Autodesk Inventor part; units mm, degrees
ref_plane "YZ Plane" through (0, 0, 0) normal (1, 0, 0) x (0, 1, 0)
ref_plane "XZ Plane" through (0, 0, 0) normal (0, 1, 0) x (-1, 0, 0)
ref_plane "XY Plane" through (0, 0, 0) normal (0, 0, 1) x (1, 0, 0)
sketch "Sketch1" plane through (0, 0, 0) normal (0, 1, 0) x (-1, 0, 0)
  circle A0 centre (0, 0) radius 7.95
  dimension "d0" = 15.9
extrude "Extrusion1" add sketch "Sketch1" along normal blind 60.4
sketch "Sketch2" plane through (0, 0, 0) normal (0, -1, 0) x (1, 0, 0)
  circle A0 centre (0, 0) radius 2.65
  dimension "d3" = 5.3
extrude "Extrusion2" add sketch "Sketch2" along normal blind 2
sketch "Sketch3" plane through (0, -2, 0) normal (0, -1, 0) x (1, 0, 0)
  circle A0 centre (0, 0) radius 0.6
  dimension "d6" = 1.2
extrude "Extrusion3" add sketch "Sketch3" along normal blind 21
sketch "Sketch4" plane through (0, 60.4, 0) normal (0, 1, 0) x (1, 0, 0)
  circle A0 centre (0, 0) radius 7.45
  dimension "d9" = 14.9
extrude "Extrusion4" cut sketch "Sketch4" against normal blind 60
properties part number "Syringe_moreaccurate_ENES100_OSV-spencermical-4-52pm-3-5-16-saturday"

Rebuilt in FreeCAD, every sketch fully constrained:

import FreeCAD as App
import Part
import Sketcher

V = App.Vector
Q = App.Units.Quantity

doc = App.newDocument("Part")
body = doc.addObject("PartDesign::Body", "Body")

# Sketch on XZ plane
sketch1 = doc.addObject("Sketcher::SketchObject", "Sketch")
body.addObject(sketch1)
sketch1.AttachmentSupport = (doc.XZ_Plane, [""])
sketch1.MapMode = "FlatFace"
sketch1.addGeometry(Part.Circle(V(0, 0, 0), V(0, 0, 1), 8), False)
sketch1.addConstraint([
    Sketcher.Constraint("Coincident", 0, 3, -1, 1),
    Sketcher.Constraint("Diameter", 0, Q("15.9 mm")),
])
pad1 = doc.addObject("PartDesign::Pad", "Pad")
body.addObject(pad1)
pad1.Profile = sketch1
pad1.Length = 60.4
pad1.Reversed = True

# Sketch on XZ plane
sketch2 = doc.addObject("Sketcher::SketchObject", "Sketch001")
body.addObject(sketch2)
sketch2.AttachmentSupport = (doc.XZ_Plane, [""])
sketch2.MapMode = "FlatFace"
sketch2.addGeometry(Part.Circle(V(0, 0, 0), V(0, 0, 1), 2.6), False)
sketch2.addConstraint([
    Sketcher.Constraint("Coincident", 0, 3, -1, 1),
    Sketcher.Constraint("Diameter", 0, Q("5.3 mm")),
])
pad2 = doc.addObject("PartDesign::Pad", "Pad001")
body.addObject(pad2)
pad2.Profile = sketch2
pad2.Length = 2

# Sketch on XZ plane
sketch3 = doc.addObject("Sketcher::SketchObject", "Sketch002")
body.addObject(sketch3)
sketch3.AttachmentSupport = (doc.XZ_Plane, [""])
sketch3.MapMode = "FlatFace"
sketch3.AttachmentOffset = App.Placement(V(0, 0, 2), App.Rotation())
sketch3.addGeometry(Part.Circle(V(0, 0, 0), V(0, 0, 1), 0.6), False)
sketch3.addConstraint([
    Sketcher.Constraint("Coincident", 0, 3, -1, 1),
    Sketcher.Constraint("Diameter", 0, Q("1.2 mm")),
])
pad3 = doc.addObject("PartDesign::Pad", "Pad002")
body.addObject(pad3)
pad3.Profile = sketch3
pad3.Length = 21

# Sketch on XZ plane
sketch4 = doc.addObject("Sketcher::SketchObject", "Sketch003")
body.addObject(sketch4)
sketch4.AttachmentSupport = (doc.XZ_Plane, [""])
sketch4.MapMode = "FlatFace"
sketch4.AttachmentOffset = App.Placement(V(0, 0, -60.4), App.Rotation())
sketch4.addGeometry(Part.Circle(V(0, 0, 0), V(0, 0, 1), 7), False)
sketch4.addConstraint([
    Sketcher.Constraint("Coincident", 0, 3, -1, 1),
    Sketcher.Constraint("Diameter", 0, Q("14.9 mm")),
])
pocket1 = doc.addObject("PartDesign::Pocket", "Pocket")
body.addObject(pocket1)
pocket1.Profile = sketch4
pocket1.Length = 60
pocket1.Reversed = True

doc.recompute()
